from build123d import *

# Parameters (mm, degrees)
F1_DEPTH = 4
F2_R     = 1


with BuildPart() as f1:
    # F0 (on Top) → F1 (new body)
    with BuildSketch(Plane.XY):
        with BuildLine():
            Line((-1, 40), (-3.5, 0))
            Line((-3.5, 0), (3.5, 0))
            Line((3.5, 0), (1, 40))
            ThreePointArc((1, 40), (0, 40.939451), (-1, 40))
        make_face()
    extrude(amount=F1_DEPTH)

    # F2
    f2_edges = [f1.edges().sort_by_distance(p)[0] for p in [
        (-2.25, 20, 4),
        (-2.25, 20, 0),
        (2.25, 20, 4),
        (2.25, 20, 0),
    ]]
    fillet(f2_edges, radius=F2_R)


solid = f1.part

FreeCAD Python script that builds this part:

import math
import FreeCAD as App
import Part
import Sketcher
from FreeCAD import Vector


def edges_at(feature, points):
    """Names of the edges that pass closest to the given points."""
    edges = feature.Shape.Edges
    near = lambda p: min(range(len(edges)), key=lambda i: edges[i].distToShape(Part.Vertex(*p))[0])
    return sorted({f"Edge{near(p) + 1}" for p in points})

doc = App.newDocument("Part")
body = doc.addObject("PartDesign::Body", "Body")

# Sketch on XY plane
sketch1 = body.newObject("Sketcher::SketchObject", "Sketch")
sketch1.AttachmentSupport = (doc.getObject("XY_Plane"), [""])
sketch1.MapMode = "FlatFace"
sketch1.addGeometry([
    Part.LineSegment(Vector(-1, 40, 0), Vector(-3.5, 0, 0)),
    Part.LineSegment(Vector(-3.5, 0, 0), Vector(3.5, 0, 0)),
    Part.LineSegment(Vector(3.5, 0, 0), Vector(1, 40, 0)),
    Part.ArcOfCircle(Part.Circle(Vector(0, 39.9, 0), Vector(0, 0, 1), 1), math.radians(4), math.radians(176)),
], False)
sketch1.addConstraint([
    Sketcher.Constraint("Coincident", 0, 2, 1, 1),
    Sketcher.Constraint("Coincident", 1, 2, 2, 1),
    Sketcher.Constraint("Tangent", 2, 2, 3, 1),
    Sketcher.Constraint("Tangent", 3, 2, 0, 1),
    Sketcher.Constraint("Horizontal", 1),
    Sketcher.Constraint("Symmetric", 0, 2, 1, 2, -1, 1),
    Sketcher.Constraint("PointOnObject", 3, 3, -2),
    Sketcher.Constraint("DistanceX", 1, 1, 1, 2, 7.0),
    Sketcher.Constraint("DistanceX", -1, 1, 2, 2, 1.0),
    Sketcher.Constraint("DistanceY", -1, 1, 2, 2, 40.0),
])
pad1 = body.newObject("PartDesign::Pad", "Pad")
pad1.Profile = sketch1
pad1.Length = 4
doc.recompute()

fillet = body.newObject("PartDesign::Fillet", "Fillet")
fillet.Base = (pad1, edges_at(pad1, [
    (-2.25, 20, 4),
    (-2.25, 20, 0),
    (2.25, 20, 4),
    (2.25, 20, 0),
]))
fillet.Radius = 1

doc.recompute()
